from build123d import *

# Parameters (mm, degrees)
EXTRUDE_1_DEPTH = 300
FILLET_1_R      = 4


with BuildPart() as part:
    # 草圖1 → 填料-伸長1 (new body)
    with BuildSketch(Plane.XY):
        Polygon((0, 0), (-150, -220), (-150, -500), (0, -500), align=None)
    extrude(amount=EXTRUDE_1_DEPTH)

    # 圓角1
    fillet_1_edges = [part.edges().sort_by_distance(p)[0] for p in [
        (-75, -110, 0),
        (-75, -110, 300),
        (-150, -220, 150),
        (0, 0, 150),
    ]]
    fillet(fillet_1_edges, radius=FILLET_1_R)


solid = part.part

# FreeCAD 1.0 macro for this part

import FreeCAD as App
import Part
import Sketcher
from FreeCAD import Vector
Q = App.Units.Quantity


def edges_at(feature, points):
    """Names of the edges that pass closest to the given points."""
    edges = feature.Shape.Edges
    near = lambda p: min(range(len(edges)), key=lambda i: edges[i].distToShape(Part.Vertex(*p))[0])
    return sorted({f"Edge{near(p) + 1}" for p in points})


def add_polygon(sketch, points):
    """Adds a closed chain of lines whose ends are joined by coincident constraints."""
    first, n = sketch.GeometryCount, len(points)
    for a, b in zip(points, points[1:] + points[:1]):
        sketch.addGeometry(Part.LineSegment(App.Vector(*a, 0), App.Vector(*b, 0)), False)
    for i in range(n):
        sketch.addConstraint(Sketcher.Constraint("Coincident", first + i, 2, first + (i + 1) % n, 1))

doc = App.newDocument("Part")
params = doc.addObject("Spreadsheet::Sheet", "Params")
for row, (alias, value) in enumerate([
    ("sketch1_width", "150 mm"),
    ("sketch1_height", "280 mm"),
    ("sketch1_height2", "500 mm"),
    ("pad1_length", "300 mm"),
    ("fillet_radius", "4 mm"),
], start=1):
    params.set(f"A{row}", alias)
    params.set(f"B{row}", "=" + value)
    params.setAlias(f"B{row}", alias)

body = doc.addObject("PartDesign::Body", "Body")

sketch1 = doc.addObject("Sketcher::SketchObject", "Sketch")
body.addObject(sketch1)
sketch1.AttachmentSupport = (doc.XY_Plane, [""])
sketch1.MapMode = "FlatFace"
add_polygon(sketch1, [(0, 0), (-150, -220), (-150, -500), (0, -500)])
sketch1.addConstraint([
    Sketcher.Constraint("Vertical", 1),
    Sketcher.Constraint("Horizontal", 2),
    Sketcher.Constraint("Vertical", 3),
    Sketcher.Constraint("Coincident", 3, 2, -1, 1),
    Sketcher.Constraint("DistanceX", 2, 1, 2, 2, Q("150 mm")),
    Sketcher.Constraint("DistanceY", 1, 2, 1, 1, Q("280 mm")),
    Sketcher.Constraint("DistanceY", 3, 1, 3, 2, Q("500 mm")),
])
sketch1.setExpression("Constraints[8]", "Params.sketch1_width")
sketch1.setExpression("Constraints[9]", "Params.sketch1_height")
sketch1.setExpression("Constraints[10]", "Params.sketch1_height2")
pad1 = doc.addObject("PartDesign::Pad", "Pad")
body.addObject(pad1)
pad1.Profile = sketch1
pad1.setExpression("Length", "Params.pad1_length")
doc.recompute()

fillet = doc.addObject("PartDesign::Fillet", "Fillet")
body.addObject(fillet)
fillet.Base = (pad1, edges_at(pad1, [
    (-75, -110, 0),
    (-75, -110, 300),
    (-150, -220, 150),
    (0, 0, 150),
]))
fillet.setExpression("Radius", "Params.fillet_radius")

doc.recompute()
